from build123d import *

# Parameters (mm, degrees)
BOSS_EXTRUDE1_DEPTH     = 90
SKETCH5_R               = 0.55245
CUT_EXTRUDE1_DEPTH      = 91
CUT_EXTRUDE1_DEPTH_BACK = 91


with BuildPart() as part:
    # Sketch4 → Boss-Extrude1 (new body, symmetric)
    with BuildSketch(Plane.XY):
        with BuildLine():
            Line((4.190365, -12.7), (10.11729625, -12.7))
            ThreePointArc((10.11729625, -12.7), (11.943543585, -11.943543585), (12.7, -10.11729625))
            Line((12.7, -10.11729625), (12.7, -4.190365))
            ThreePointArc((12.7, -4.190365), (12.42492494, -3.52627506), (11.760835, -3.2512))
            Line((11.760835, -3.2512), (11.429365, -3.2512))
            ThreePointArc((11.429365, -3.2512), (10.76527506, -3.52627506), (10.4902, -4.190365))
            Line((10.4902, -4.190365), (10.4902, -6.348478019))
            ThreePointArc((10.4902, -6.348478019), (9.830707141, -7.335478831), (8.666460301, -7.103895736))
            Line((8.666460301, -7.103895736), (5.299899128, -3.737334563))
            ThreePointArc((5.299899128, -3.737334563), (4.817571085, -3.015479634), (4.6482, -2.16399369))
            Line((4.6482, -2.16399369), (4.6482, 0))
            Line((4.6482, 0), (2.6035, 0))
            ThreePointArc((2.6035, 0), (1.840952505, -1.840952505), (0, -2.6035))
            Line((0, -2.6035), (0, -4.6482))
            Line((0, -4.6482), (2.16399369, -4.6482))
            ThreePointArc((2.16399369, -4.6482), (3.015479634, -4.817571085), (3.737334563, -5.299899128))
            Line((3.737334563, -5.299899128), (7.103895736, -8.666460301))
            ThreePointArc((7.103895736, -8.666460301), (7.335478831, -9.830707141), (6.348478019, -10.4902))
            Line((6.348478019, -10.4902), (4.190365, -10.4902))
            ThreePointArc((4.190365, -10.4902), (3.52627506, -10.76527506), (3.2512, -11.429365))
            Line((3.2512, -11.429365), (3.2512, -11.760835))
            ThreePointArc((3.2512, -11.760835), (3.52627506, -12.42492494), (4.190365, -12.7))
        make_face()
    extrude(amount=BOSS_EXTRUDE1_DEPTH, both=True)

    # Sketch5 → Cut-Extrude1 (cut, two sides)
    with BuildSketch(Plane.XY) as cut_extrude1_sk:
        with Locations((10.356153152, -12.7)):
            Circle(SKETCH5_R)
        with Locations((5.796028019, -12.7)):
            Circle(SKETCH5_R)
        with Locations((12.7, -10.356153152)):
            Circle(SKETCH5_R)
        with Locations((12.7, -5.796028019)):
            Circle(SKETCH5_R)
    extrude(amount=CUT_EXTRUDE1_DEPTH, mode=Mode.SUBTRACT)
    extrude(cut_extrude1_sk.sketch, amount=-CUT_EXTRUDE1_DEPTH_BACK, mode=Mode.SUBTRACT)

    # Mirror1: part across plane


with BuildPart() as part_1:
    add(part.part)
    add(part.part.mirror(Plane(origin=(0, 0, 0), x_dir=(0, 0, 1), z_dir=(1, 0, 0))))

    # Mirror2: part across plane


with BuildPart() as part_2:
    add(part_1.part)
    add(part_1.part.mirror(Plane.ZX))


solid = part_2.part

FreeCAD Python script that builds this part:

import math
import FreeCAD as App
import Part
import Sketcher
from FreeCAD import Vector
Q = App.Units.Quantity

doc = App.newDocument("Part")
params = doc.addObject("Spreadsheet::Sheet", "Params")
for row, (alias, value) in enumerate([
    ("pad1_length", "180 mm"),
], start=1):
    params.set(f"A{row}", alias)
    params.set(f"B{row}", "=" + value)
    params.setAlias(f"B{row}", alias)

body = doc.addObject("PartDesign::Body", "Body")

sketch1 = doc.addObject("Sketcher::SketchObject", "Sketch")
body.addObject(sketch1)
sketch1.AttachmentSupport = (doc.XY_Plane, [""])
sketch1.MapMode = "FlatFace"
sketch1.addGeometry([
    Part.LineSegment(Vector(4.190365, -12.7, 0), Vector(10.117296, -12.7, 0)),
    Part.ArcOfCircle(Part.Circle(Vector(10.117296, -10.117296, 0), Vector(0, 0, 1), 2.582704), math.radians(-90), math.radians(0)),
    Part.LineSegment(Vector(12.7, -10.117296, 0), Vector(12.7, -4.190365, 0)),
    Part.ArcOfCircle(Part.Circle(Vector(11.760835, -4.190365, 0), Vector(0, 0, 1), 0.939165), math.radians(0), math.radians(90)),
    Part.LineSegment(Vector(11.760835, -3.2512, 0), Vector(11.429365, -3.2512, 0)),
    Part.ArcOfCircle(Part.Circle(Vector(11.429365, -4.190365, 0), Vector(0, 0, 1), 0.939165), math.radians(90), math.radians(180)),
    Part.LineSegment(Vector(10.4902, -4.190365, 0), Vector(10.4902, -6.348478, 0)),
    Part.ArcOfCircle(Part.Circle(Vector(9.421878, -6.348478, 0), Vector(0, 0, 1), 1.068322), math.radians(-135), math.radians(0)),
    Part.LineSegment(Vector(8.66646, -7.103896, 0), Vector(5.299899, -3.737335, 0)),
    Part.ArcOfCircle(Part.Circle(Vector(6.87324, -2.163994, 0), Vector(0, 0, 1), 2.22504), math.radians(-180), math.radians(-135)),
    Part.LineSegment(Vector(4.6482, -2.163994, 0), Vector(4.6482, 0, 0)),
    Part.LineSegment(Vector(4.6482, 0, 0), Vector(2.6035, 0, 0)),
    Part.ArcOfCircle(Part.Circle(Vector(0, 0, 0), Vector(0, 0, 1), 2.6035), math.radians(-90), math.radians(0)),
    Part.LineSegment(Vector(0, -2.6035, 0), Vector(0, -4.6482, 0)),
    Part.LineSegment(Vector(0, -4.6482, 0), Vector(2.163994, -4.6482, 0)),
    Part.ArcOfCircle(Part.Circle(Vector(2.163994, -6.87324, 0), Vector(0, 0, 1), 2.22504), math.radians(45), math.radians(90)),
    Part.LineSegment(Vector(3.737335, -5.299899, 0), Vector(7.103896, -8.66646, 0)),
    Part.ArcOfCircle(Part.Circle(Vector(6.348478, -9.421878, 0), Vector(0, 0, 1), 1.068322), math.radians(-90), math.radians(45)),
    Part.LineSegment(Vector(6.348478, -10.4902, 0), Vector(4.190365, -10.4902, 0)),
    Part.ArcOfCircle(Part.Circle(Vector(4.190365, -11.429365, 0), Vector(0, 0, 1), 0.939165), math.radians(90), math.radians(180)),
    Part.LineSegment(Vector(3.2512, -11.429365, 0), Vector(3.2512, -11.760835, 0)),
    Part.ArcOfCircle(Part.Circle(Vector(4.190365, -11.760835, 0), Vector(0, 0, 1), 0.939165), math.radians(-180), math.radians(-90)),
], False)
sketch1.addConstraint([
    Sketcher.Constraint("Tangent", 0, 2, 1, 1),
    Sketcher.Constraint("Tangent", 1, 2, 2, 1),
    Sketcher.Constraint("Tangent", 2, 2, 3, 1),
    Sketcher.Constraint("Tangent", 3, 2, 4, 1),
    Sketcher.Constraint("Tangent", 4, 2, 5, 1),
    Sketcher.Constraint("Tangent", 5, 2, 6, 1),
    Sketcher.Constraint("Tangent", 6, 2, 7, 2),
    Sketcher.Constraint("Tangent", 7, 1, 8, 1),
    Sketcher.Constraint("Tangent", 8, 2, 9, 2),
    Sketcher.Constraint("Tangent", 9, 1, 10, 1),
    Sketcher.Constraint("Coincident", 10, 2, 11, 1),
    Sketcher.Constraint("Coincident", 11, 2, 12, 2),
    Sketcher.Constraint("Coincident", 12, 1, 13, 1),
    Sketcher.Constraint("Coincident", 13, 2, 14, 1),
    Sketcher.Constraint("Tangent", 14, 2, 15, 2),
    Sketcher.Constraint("Tangent", 15, 1, 16, 1),
    Sketcher.Constraint("Tangent", 16, 2, 17, 2),
    Sketcher.Constraint("Tangent", 17, 1, 18, 1),
    Sketcher.Constraint("Tangent", 18, 2, 19, 1),
    Sketcher.Constraint("Tangent", 19, 2, 20, 1),
    Sketcher.Constraint("Tangent", 20, 2, 21, 1),
    Sketcher.Constraint("Tangent", 21, 2, 0, 1),
    Sketcher.Constraint("Horizontal", 0),
    Sketcher.Constraint("Vertical", 2),
    Sketcher.Constraint("Horizontal", 4),
    Sketcher.Constraint("Vertical", 6),
    Sketcher.Constraint("Vertical", 10),
    Sketcher.Constraint("Horizontal", 11),
    Sketcher.Constraint("Vertical", 13),
    Sketcher.Constraint("Horizontal", 14),
    Sketcher.Constraint("Horizontal", 18),
    Sketcher.Constraint("Vertical", 20),
    Sketcher.Constraint("Coincident", 12, 3, -1, 1),
    Sketcher.Constraint("Equal", 3, 5),
    Sketcher.Constraint("Equal", 9, 15),
    Sketcher.Constraint("Equal", 7, 17),
    Sketcher.Constraint("Equal", 5, 19),
    Sketcher.Constraint("Equal", 19, 21),
    Sketcher.Constraint("PointOnObject", 10, 2, -1),
    Sketcher.Constraint("PointOnObject", 12, 1, -2),
    Sketcher.Constraint("Parallel", 8, 16),
    Sketcher.Constraint("Equal", 0, 2),
    Sketcher.Constraint("Equal", 18, 6),
    Sketcher.Constraint("Equal", 14, 10),
    Sketcher.Constraint("Equal", 11, 13),
    Sketcher.Constraint("Equal", 4, 20),
    Sketcher.Constraint("Equal", 8, 16),
    Sketcher.Constraint("DistanceY", 0, 2, -1, 1, Q("12.7 mm")),
    Sketcher.Constraint("Radius", 12, Q("2.6035 mm")),
    Sketcher.Constraint("Radius", 7, Q("1.068322 mm")),
    Sketcher.Constraint("Radius", 9, Q("2.22504 mm")),
    Sketcher.Constraint("DistanceX", 11, 2, 11, 1, Q("2.0447 mm")),
    Sketcher.Constraint("Radius", 1, Q("2.582704 mm")),
    Sketcher.Constraint("Radius", 3, Q("0.939165 mm")),
    Sketcher.Constraint("DistanceX", 9, 1, 5, 2, Q("5.842 mm")),
    Sketcher.Constraint("DistanceX", 0, 1, 0, 2, Q("5.926931 mm")),
    Sketcher.Constraint("DistanceX", 17, 3, 7, 3, Q("3.0734 mm")),
])
pad1 = doc.addObject("PartDesign::Pad", "Pad")
body.addObject(pad1)
pad1.Profile = sketch1
pad1.setExpression("Length", "Params.pad1_length")
pad1.Midplane = True

sketch2 = doc.addObject("Sketcher::SketchObject", "Sketch001")
body.addObject(sketch2)
sketch2.AttachmentSupport = (doc.XY_Plane, [""])
sketch2.MapMode = "FlatFace"
sketch2.addGeometry([
    Part.Circle(Vector(10.356153, -12.7, 0), Vector(0, 0, 1), 0.55245),
    Part.Circle(Vector(5.796028, -12.7, 0), Vector(0, 0, 1), 0.55245),
    Part.Circle(Vector(12.7, -10.356153, 0), Vector(0, 0, 1), 0.55245),
    Part.Circle(Vector(12.7, -5.796028, 0), Vector(0, 0, 1), 0.55245),
], False)
sketch2.addConstraint([
    Sketcher.Constraint("Equal", 0, 1),
    Sketcher.Constraint("Equal", 1, 2),
    Sketcher.Constraint("Equal", 2, 3),
    Sketcher.Constraint("Horizontal", 0, 3, 1, 3),
    Sketcher.Constraint("Vertical", 2, 3, 3, 3),
    Sketcher.Constraint("Diameter", 0, Q("1.1049 mm")),
    Sketcher.Constraint("DistanceY", 0, 3, -1, 1, Q("12.7 mm")),
    Sketcher.Constraint("DistanceX", -1, 1, 2, 3, Q("12.7 mm")),
    Sketcher.Constraint("DistanceX", -1, 1, 1, 3, Q("5.796028 mm")),
    Sketcher.Constraint("DistanceY", 3, 3, -1, 1, Q("5.796028 mm")),
    Sketcher.Constraint("DistanceX", -1, 1, 0, 3, Q("10.356153 mm")),
    Sketcher.Constraint("DistanceY", 2, 3, -1, 1, Q("10.356153 mm")),
])
pocket1 = doc.addObject("PartDesign::Pocket", "Pocket")
body.addObject(pocket1)
pocket1.Profile = sketch2
pocket1.Type = "ThroughAll"
pocket1.Midplane = True
body2 = doc.addObject("PartDesign::Body", "Body001")
doc.recompute()

body2.BaseFeature = body
doc.recompute()

mirroring = doc.addObject("Part::Mirroring", "Mirroring")
mirroring.Source = body
mirroring.Base = Vector(0, 0, 0)
mirroring.Normal = Vector(1, 0, 0)
body3 = doc.addObject("PartDesign::Body", "Body002")
body3.BaseFeature = mirroring
boolean = doc.addObject("PartDesign::Boolean", "Boolean")
body2.addObject(boolean)
boolean.Type = "Fuse"
boolean.addObjects([body3])
doc.recompute()
body4 = doc.addObject("PartDesign::Body", "Body003")
doc.recompute()

body4.BaseFeature = body2
doc.recompute()

mirroring2 = doc.addObject("Part::Mirroring", "Mirroring001")
mirroring2.Source = body2
mirroring2.Base = Vector(0, 0, 0)
mirroring2.Normal = Vector(0, 1, 0)
body5 = doc.addObject("PartDesign::Body", "Body004")
body5.BaseFeature = mirroring2
boolean2 = doc.addObject("PartDesign::Boolean", "Boolean001")
body4.addObject(boolean2)
boolean2.Type = "Fuse"
boolean2.addObjects([body5])
doc.recompute()
mirroring.Visibility = False
mirroring2.Visibility = False

doc.recompute()
